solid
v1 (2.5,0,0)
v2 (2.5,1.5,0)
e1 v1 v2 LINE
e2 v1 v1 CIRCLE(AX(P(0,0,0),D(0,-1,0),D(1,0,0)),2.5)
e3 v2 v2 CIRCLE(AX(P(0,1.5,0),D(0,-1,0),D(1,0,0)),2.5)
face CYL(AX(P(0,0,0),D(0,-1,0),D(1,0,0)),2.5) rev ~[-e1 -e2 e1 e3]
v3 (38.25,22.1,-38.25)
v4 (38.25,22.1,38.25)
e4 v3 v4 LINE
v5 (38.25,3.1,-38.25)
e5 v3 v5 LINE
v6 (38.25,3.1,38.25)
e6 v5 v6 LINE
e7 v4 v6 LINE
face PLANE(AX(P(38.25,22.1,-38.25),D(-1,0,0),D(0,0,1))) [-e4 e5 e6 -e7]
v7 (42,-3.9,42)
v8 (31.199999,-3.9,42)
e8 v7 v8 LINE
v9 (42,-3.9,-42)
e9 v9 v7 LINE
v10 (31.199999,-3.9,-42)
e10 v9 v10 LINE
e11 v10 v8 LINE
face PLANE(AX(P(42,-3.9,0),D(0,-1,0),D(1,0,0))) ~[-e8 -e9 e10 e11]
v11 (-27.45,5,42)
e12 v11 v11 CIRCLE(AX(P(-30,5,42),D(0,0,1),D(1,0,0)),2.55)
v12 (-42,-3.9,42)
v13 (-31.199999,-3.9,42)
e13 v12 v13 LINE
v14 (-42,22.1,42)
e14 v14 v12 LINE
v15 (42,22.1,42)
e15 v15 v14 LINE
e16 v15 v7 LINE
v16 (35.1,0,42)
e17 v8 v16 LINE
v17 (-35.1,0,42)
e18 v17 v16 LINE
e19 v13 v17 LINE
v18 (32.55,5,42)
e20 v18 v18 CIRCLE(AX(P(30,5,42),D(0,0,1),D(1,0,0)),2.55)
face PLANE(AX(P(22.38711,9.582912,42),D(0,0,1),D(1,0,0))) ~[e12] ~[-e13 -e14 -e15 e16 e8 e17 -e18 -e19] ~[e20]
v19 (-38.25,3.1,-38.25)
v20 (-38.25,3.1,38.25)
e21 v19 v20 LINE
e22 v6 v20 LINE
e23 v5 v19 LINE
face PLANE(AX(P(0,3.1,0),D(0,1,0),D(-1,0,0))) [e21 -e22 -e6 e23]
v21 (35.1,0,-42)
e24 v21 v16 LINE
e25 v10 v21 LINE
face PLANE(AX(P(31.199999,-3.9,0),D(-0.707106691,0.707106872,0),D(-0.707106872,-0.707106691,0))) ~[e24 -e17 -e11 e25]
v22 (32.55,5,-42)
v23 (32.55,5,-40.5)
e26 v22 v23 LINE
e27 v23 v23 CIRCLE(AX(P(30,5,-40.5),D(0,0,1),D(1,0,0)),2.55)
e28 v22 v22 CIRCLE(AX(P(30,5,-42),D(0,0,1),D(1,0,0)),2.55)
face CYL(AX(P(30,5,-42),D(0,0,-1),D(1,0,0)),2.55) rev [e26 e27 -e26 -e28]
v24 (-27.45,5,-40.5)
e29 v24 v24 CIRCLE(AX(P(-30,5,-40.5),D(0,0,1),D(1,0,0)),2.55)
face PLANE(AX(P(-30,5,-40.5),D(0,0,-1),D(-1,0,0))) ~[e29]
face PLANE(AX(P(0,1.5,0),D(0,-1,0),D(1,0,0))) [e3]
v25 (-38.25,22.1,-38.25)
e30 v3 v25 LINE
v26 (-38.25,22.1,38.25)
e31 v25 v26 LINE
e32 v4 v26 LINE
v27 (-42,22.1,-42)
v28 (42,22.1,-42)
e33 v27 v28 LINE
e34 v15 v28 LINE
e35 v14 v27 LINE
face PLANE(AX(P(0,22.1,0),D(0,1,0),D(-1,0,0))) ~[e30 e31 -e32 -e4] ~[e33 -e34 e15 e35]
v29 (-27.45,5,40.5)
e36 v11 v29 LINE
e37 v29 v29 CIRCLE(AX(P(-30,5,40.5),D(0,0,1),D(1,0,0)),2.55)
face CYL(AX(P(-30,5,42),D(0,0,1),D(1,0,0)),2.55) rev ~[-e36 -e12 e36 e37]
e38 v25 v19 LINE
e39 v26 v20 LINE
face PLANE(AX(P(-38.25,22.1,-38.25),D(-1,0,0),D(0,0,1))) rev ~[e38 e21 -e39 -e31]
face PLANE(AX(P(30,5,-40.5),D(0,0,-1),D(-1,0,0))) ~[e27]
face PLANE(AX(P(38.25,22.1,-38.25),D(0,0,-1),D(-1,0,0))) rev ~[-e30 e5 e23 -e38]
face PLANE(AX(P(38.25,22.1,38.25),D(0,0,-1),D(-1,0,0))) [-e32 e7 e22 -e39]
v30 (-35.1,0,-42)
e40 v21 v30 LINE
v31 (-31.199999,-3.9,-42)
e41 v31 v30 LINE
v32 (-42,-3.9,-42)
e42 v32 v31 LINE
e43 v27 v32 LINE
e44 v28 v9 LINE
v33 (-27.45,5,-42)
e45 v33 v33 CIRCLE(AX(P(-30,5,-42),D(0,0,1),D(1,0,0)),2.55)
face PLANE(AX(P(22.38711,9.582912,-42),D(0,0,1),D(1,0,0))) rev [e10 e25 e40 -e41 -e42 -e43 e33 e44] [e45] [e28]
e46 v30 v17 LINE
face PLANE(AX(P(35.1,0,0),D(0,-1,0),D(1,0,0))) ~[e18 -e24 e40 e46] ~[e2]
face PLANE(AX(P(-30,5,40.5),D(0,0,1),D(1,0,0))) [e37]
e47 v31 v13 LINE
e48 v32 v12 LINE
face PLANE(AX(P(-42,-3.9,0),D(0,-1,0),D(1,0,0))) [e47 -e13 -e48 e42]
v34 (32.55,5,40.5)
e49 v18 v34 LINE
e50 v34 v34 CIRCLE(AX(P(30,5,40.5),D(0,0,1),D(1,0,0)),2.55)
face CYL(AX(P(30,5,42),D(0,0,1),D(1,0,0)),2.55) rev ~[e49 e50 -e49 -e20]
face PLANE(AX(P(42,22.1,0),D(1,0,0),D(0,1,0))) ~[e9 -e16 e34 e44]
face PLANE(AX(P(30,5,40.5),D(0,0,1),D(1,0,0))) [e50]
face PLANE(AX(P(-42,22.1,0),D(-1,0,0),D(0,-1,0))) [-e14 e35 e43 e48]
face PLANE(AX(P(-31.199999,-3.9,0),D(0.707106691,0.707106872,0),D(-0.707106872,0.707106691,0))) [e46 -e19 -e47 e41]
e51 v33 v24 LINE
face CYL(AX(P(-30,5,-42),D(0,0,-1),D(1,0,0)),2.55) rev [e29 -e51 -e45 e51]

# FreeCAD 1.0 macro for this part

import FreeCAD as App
import Part
import Sketcher

V = App.Vector
Q = App.Units.Quantity


def add_polygon(sketch, points):
    """Adds a closed chain of lines whose ends are joined by coincident constraints."""
    first, n = sketch.GeometryCount, len(points)
    for a, b in zip(points, points[1:] + points[:1]):
        sketch.addGeometry(Part.LineSegment(App.Vector(*a, 0), App.Vector(*b, 0)), False)
    for i in range(n):
        sketch.addConstraint(Sketcher.Constraint("Coincident", first + i, 2, first + (i + 1) % n, 1))

doc = App.newDocument("Part")
body = doc.addObject("PartDesign::Body", "Body")

sketch1 = body.newObject("Sketcher::SketchObject", "Sketch")
sketch1.AttachmentSupport = (doc.getObject("XY_Plane"), [""])
sketch1.MapMode = "FlatFace"
add_polygon(sketch1, [(-42, 22), (-42, -4), (-31, -4), (-35, 0), (0, 0), (0, 22)])
sketch1.addConstraint([
    Sketcher.Constraint("Vertical", 0),
    Sketcher.Constraint("Horizontal", 1),
    Sketcher.Constraint("Horizontal", 3),
    Sketcher.Constraint("Vertical", 4),
    Sketcher.Constraint("Horizontal", 5),
    Sketcher.Constraint("Coincident", 3, 2, -1, 1),
    Sketcher.Constraint("DistanceX", 5, 2, 5, 1, 42.0),
    Sketcher.Constraint("DistanceY", 0, 2, 0, 1, 26.0),
    Sketcher.Constraint("Angle", 2, Q("135.000007 deg")),
    Sketcher.Constraint("DistanceX", 1, 1, 1, 2, 10.800001),
    Sketcher.Constraint("DistanceX", 3, 1, 3, 2, 35.1),
])
pad1 = body.newObject("PartDesign::Pad", "Pad")
pad1.Profile = sketch1
pad1.Length = 84
pad1.Midplane = True
body2 = doc.addObject("PartDesign::Body", "Body001")
doc.recompute()

body2.BaseFeature = body
doc.recompute()

mirroring = doc.addObject("Part::Mirroring", "Mirroring")
mirroring.Source = body
mirroring.Base = V(0, 0, 0)
mirroring.Normal = V(1, 0, 0)
body3 = doc.addObject("PartDesign::Body", "Body002")
body3.BaseFeature = mirroring
boolean = body2.newObject("PartDesign::Boolean", "Boolean")
boolean.Type = "Fuse"
boolean.addObjects([body3])
doc.recompute()

sketch2 = body2.newObject("Sketcher::SketchObject", "Sketch001")
sketch2.AttachmentSupport = (doc.getObject("XZ_Plane001"), [""])
sketch2.MapMode = "FlatFace"
sketch2.addGeometry(Part.Circle(V(0, 0, 0), V(0, 0, 1), 2.5), False)
sketch2.addConstraint([
    Sketcher.Constraint("Coincident", 0, 3, -1, 1),
    Sketcher.Constraint("Diameter", 0, 5.0),
])
pocket1 = body2.newObject("PartDesign::Pocket", "Pocket")
pocket1.Profile = sketch2
pocket1.Length = 1.5

sketch3 = body2.newObject("Sketcher::SketchObject", "Sketch002")
sketch3.AttachmentSupport = (doc.getObject("XZ_Plane001"), [""])
sketch3.MapMode = "FlatFace"
sketch3.AttachmentOffset = App.Placement(V(0, 0, -22.1), App.Rotation())
add_polygon(sketch3, [(38, 38), (38, -38), (-38, -38), (-38, 38)])
sketch3.addConstraint([
    Sketcher.Constraint("Vertical", 0),
    Sketcher.Constraint("Horizontal", 1),
    Sketcher.Constraint("Vertical", 2),
    Sketcher.Constraint("Horizontal", 3),
    Sketcher.Constraint("Symmetric", 0, 2, 2, 2, -1, 1),
    Sketcher.Constraint("Equal", 3, 0),
    Sketcher.Constraint("DistanceX", 1, 2, 1, 1, 76.5),
])
pocket2 = body2.newObject("PartDesign::Pocket", "Pocket001")
pocket2.Profile = sketch3
pocket2.Length = 19
pocket2.Reversed = True

sketch4 = body2.newObject("Sketcher::SketchObject", "Sketch003")
sketch4.AttachmentSupport = (doc.getObject("XY_Plane001"), [""])
sketch4.MapMode = "FlatFace"
sketch4.AttachmentOffset = App.Placement(V(0, 0, 42), App.Rotation())
sketch4.addGeometry([
    Part.Circle(V(-30, 5, 0), V(0, 0, 1), 2.5),
    Part.Circle(V(30, 5, 0), V(0, 0, 1), 2.5),
], False)
sketch4.addConstraint([
    Sketcher.Constraint("Equal", 0, 1),
    Sketcher.Constraint("Symmetric", 0, 3, 1, 3, -2),
    Sketcher.Constraint("Diameter", 0, 5.1),
    Sketcher.Constraint("DistanceX", 0, 3, -1, 1, 30.0),
    Sketcher.Constraint("DistanceY", -1, 1, 0, 3, 5.0),
])
pocket3 = body2.newObject("PartDesign::Pocket", "Pocket002")
pocket3.Profile = sketch4
pocket3.Length = 1.5
doc.recompute()

mirrored = body2.newObject("PartDesign::Mirrored", "Mirrored")
mirrored.Originals = [pocket3]
mirrored.MirrorPlane = (doc.getObject("XY_Plane001"), [""])
body2.Tip = mirrored
mirroring.Visibility = False

doc.recompute()
